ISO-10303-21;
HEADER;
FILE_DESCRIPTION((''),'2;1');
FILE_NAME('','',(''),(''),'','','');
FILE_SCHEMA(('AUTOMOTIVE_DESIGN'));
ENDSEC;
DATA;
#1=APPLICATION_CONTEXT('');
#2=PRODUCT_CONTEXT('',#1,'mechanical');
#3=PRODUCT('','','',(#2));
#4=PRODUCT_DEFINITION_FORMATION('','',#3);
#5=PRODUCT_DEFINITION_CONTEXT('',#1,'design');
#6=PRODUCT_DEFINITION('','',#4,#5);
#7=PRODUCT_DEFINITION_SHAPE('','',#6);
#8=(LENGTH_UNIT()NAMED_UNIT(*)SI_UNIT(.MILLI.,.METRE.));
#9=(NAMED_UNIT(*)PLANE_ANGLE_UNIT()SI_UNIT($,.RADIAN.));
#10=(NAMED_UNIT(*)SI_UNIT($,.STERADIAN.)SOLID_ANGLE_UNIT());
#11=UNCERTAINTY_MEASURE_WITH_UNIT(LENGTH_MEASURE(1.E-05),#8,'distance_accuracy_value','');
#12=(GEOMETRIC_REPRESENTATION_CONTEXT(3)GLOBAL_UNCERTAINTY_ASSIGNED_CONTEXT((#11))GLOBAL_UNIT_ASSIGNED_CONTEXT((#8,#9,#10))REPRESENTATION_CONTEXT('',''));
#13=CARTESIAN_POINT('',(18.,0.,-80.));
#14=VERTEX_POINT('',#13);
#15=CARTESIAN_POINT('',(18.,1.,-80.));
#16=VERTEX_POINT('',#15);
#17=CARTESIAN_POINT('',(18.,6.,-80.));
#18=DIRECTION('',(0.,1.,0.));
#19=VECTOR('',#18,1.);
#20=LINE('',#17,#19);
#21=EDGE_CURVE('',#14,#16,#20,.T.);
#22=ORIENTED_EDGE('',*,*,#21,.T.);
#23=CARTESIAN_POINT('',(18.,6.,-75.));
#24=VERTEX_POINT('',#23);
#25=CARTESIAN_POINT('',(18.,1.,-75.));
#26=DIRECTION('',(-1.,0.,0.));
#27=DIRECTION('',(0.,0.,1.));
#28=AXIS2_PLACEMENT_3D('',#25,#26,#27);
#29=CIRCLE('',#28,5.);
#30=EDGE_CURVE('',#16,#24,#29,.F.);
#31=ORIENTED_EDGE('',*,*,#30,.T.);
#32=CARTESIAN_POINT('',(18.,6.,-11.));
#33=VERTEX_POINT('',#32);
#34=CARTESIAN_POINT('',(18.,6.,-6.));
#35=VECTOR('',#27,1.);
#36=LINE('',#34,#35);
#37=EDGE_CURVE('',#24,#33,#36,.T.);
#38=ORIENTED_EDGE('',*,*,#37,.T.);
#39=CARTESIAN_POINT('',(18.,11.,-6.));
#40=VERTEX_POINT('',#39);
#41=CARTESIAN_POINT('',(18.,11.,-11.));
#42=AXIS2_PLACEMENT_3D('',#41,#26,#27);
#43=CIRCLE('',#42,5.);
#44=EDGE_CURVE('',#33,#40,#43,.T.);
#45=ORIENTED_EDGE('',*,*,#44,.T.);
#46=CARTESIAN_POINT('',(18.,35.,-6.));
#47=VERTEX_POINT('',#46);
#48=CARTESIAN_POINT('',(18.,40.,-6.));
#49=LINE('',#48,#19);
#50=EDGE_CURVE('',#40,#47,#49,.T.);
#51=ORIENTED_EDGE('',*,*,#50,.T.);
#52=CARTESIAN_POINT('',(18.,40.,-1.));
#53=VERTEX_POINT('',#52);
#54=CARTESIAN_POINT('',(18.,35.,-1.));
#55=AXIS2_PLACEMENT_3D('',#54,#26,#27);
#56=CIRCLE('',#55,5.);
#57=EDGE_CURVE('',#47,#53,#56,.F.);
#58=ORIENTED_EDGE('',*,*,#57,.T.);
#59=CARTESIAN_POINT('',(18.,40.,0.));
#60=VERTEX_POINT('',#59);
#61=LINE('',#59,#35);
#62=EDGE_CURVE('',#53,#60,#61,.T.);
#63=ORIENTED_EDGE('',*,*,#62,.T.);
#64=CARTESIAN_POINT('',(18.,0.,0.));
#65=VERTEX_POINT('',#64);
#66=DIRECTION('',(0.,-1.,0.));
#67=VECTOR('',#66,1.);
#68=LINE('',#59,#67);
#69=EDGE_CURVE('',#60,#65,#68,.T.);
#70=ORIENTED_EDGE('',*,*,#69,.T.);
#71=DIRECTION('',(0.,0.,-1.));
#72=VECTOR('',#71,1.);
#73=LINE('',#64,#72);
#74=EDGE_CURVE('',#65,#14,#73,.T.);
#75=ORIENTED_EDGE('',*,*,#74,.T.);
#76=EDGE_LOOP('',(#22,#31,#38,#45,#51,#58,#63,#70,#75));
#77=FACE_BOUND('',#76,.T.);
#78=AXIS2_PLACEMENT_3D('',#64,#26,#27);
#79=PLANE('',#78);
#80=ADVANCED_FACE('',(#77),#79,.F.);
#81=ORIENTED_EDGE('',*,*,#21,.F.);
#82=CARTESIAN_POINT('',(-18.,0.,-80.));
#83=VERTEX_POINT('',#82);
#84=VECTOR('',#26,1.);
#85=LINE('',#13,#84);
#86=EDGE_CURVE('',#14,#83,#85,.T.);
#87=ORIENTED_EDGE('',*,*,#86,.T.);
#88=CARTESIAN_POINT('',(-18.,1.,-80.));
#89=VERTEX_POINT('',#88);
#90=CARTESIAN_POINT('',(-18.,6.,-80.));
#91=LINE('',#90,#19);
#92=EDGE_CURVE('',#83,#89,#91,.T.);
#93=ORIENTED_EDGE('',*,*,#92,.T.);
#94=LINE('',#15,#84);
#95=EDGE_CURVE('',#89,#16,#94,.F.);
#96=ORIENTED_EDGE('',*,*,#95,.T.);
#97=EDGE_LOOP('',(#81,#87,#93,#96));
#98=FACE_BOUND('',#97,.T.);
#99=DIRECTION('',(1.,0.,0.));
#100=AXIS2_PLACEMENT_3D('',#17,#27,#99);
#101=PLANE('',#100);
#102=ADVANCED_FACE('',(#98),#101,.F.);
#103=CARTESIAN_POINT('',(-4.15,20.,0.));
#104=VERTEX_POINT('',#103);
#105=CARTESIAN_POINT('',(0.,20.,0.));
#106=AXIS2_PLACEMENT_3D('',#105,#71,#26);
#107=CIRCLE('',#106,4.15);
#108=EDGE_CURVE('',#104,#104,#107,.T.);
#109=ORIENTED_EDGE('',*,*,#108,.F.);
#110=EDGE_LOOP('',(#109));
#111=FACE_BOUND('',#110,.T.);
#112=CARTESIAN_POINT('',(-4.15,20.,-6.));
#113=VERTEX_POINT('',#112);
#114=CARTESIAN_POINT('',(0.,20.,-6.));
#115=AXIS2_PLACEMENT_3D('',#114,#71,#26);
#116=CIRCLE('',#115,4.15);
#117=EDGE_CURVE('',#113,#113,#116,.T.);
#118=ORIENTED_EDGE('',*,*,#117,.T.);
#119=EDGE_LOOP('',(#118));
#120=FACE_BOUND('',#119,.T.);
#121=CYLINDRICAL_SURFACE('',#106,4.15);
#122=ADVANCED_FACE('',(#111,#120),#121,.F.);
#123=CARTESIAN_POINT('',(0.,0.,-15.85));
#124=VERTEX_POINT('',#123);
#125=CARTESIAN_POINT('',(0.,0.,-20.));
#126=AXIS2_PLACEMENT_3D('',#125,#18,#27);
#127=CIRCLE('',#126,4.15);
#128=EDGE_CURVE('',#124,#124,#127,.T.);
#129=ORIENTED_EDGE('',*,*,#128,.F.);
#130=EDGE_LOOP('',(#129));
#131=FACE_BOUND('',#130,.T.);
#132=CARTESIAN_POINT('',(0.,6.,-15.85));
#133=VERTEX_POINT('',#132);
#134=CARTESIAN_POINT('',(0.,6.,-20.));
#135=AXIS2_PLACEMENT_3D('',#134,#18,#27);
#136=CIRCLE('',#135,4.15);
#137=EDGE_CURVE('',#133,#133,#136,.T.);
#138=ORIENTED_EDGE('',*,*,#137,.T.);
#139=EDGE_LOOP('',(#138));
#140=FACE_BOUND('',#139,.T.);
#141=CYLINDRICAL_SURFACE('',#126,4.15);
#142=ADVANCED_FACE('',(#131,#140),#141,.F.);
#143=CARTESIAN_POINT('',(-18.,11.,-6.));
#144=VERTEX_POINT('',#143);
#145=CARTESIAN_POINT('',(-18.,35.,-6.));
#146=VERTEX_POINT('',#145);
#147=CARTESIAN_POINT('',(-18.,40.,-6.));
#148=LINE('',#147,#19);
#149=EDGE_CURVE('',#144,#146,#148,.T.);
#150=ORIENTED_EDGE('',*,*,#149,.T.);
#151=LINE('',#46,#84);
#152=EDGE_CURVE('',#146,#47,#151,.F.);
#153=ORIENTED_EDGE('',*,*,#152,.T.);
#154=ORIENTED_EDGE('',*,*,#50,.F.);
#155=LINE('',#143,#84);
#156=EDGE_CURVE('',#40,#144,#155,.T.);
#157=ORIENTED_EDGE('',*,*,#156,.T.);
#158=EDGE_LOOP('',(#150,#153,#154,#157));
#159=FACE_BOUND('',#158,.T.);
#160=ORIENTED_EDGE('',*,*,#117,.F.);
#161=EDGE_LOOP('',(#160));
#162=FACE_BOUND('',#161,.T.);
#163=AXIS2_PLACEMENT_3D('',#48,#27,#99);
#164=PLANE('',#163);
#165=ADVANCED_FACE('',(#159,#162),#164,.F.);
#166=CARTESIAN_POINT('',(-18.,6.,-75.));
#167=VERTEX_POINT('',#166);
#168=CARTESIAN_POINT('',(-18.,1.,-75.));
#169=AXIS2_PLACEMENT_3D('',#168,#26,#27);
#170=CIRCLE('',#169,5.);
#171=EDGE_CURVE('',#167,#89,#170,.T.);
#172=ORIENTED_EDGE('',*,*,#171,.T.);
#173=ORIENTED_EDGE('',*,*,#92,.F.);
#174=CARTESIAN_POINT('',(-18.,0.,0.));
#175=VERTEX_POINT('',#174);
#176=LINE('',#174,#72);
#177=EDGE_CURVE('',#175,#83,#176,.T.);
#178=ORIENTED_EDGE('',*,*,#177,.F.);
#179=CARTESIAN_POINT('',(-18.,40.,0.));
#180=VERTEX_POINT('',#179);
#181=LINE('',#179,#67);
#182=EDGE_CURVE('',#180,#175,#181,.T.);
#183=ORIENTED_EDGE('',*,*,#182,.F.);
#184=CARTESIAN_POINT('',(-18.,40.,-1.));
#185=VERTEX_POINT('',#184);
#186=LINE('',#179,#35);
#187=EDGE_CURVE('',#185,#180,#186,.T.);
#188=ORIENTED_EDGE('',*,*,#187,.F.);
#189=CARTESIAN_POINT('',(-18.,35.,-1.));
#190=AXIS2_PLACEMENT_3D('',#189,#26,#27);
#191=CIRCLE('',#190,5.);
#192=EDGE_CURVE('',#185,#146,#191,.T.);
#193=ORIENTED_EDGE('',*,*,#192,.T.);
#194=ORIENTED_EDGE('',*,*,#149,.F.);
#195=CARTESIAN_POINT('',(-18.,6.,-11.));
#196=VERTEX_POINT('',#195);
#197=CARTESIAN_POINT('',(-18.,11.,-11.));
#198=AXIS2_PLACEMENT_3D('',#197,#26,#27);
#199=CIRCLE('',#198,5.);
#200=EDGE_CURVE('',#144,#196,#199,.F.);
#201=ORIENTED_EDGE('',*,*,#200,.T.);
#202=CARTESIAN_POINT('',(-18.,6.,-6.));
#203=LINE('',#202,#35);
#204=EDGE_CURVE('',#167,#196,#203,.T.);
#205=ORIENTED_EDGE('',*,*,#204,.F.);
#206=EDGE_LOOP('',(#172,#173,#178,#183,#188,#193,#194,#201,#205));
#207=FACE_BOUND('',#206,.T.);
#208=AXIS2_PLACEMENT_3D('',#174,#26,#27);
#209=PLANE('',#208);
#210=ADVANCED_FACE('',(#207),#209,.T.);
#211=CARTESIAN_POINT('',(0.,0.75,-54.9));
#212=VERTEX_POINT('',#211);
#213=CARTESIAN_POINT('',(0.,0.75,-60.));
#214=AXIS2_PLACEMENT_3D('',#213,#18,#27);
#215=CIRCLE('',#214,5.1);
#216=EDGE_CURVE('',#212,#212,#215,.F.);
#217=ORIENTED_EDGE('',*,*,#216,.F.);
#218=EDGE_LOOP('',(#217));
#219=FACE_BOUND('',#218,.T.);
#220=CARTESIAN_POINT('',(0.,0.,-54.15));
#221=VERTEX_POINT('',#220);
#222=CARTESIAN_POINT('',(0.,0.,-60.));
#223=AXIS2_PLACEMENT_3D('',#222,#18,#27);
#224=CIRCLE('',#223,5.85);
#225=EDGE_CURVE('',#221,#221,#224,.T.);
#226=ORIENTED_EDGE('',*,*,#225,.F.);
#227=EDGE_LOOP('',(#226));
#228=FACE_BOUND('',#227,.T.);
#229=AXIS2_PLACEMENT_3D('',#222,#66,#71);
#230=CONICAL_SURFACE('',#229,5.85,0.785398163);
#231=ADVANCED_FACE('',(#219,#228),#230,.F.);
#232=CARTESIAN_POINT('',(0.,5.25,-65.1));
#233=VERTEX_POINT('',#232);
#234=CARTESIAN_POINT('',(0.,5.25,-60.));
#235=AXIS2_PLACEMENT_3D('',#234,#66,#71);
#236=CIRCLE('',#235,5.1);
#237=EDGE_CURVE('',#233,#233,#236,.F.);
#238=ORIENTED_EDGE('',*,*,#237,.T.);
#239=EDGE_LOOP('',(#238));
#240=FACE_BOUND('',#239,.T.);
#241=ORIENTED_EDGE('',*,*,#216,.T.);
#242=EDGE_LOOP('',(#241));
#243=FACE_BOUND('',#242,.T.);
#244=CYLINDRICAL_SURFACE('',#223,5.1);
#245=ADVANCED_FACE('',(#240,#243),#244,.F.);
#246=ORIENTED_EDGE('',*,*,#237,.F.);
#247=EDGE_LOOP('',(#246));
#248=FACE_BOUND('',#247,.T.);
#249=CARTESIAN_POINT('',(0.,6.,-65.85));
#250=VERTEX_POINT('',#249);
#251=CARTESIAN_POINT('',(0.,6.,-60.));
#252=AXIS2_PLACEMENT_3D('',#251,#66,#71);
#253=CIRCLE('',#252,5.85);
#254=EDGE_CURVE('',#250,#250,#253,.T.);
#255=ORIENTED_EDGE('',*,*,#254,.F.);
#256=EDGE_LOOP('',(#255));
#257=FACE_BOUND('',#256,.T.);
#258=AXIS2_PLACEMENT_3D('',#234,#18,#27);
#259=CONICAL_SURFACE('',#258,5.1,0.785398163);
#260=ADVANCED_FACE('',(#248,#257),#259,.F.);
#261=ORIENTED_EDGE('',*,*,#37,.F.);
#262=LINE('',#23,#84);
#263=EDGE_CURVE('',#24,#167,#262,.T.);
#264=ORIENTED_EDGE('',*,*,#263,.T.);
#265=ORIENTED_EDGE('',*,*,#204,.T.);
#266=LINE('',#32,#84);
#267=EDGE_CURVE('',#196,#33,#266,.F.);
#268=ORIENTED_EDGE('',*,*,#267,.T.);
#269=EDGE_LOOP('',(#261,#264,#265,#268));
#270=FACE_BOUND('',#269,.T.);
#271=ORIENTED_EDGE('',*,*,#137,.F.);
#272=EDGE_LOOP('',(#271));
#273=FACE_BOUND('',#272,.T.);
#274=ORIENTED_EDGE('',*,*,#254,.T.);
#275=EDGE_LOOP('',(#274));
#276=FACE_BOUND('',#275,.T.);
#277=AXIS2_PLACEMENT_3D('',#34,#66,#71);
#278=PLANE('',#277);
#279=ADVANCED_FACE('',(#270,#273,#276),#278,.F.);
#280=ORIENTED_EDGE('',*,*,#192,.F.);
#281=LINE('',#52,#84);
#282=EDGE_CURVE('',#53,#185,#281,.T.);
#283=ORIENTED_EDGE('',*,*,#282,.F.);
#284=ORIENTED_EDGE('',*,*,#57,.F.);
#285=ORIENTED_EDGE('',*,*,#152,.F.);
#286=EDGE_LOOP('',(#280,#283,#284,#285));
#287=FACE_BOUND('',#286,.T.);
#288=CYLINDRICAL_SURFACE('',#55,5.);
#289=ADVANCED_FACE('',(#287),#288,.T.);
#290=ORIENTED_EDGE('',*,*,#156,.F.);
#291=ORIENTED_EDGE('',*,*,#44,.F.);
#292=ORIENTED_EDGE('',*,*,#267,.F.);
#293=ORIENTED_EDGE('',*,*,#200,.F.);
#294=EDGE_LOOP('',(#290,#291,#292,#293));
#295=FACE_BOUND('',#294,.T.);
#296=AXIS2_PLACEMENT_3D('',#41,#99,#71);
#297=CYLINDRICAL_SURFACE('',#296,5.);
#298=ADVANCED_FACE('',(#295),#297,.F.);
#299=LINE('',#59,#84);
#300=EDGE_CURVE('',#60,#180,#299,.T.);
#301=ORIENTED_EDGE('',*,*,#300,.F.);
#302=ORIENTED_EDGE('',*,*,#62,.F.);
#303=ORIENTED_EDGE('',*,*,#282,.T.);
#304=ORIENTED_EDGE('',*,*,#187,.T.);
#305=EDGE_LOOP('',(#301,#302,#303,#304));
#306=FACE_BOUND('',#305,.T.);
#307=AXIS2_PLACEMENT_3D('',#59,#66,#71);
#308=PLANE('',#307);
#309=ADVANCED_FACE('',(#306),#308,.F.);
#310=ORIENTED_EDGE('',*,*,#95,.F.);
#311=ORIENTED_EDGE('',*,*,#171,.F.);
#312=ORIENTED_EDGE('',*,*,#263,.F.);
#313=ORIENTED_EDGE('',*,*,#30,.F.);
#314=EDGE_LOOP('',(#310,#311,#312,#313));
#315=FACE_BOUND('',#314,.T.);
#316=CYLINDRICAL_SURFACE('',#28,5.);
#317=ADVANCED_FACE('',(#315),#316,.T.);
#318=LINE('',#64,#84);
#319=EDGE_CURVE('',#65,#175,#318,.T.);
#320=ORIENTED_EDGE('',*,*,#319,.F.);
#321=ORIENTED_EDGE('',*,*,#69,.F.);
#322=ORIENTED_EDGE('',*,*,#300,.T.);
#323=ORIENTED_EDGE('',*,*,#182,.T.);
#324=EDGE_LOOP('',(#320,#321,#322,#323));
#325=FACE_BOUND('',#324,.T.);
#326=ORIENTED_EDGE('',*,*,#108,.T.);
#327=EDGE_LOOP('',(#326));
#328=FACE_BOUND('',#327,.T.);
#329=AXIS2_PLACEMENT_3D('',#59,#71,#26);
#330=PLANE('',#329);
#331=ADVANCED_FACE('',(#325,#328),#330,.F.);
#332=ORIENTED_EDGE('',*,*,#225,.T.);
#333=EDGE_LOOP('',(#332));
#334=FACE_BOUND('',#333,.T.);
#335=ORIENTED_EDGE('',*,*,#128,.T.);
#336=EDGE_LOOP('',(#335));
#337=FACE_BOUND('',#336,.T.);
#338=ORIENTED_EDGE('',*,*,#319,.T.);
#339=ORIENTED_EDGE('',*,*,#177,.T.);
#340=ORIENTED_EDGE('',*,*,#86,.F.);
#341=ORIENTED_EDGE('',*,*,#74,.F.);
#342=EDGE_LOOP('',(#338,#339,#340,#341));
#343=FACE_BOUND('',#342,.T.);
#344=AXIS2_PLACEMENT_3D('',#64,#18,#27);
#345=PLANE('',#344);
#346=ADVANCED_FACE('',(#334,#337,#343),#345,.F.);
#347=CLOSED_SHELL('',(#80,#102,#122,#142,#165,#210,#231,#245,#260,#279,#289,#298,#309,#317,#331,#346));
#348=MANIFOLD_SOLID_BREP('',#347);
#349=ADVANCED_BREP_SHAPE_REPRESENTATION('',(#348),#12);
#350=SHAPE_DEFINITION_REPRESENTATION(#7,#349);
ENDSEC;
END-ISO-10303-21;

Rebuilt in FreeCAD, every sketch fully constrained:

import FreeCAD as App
import Part
import Sketcher
from FreeCAD import Vector
Q = App.Units.Quantity


def edges_at(feature, points):
    """Names of the edges that pass closest to the given points."""
    edges = feature.Shape.Edges
    near = lambda p: min(range(len(edges)), key=lambda i: edges[i].distToShape(Part.Vertex(*p))[0])
    return sorted({f"Edge{near(p) + 1}" for p in points})

doc = App.newDocument("Part")
body = doc.addObject("PartDesign::Body", "Body")

sketch1 = body.newObject("Sketcher::SketchObject", "Sketch")
sketch1.AttachmentSupport = (doc.getObject("YZ_Plane"), [""])
sketch1.MapMode = "FlatFace"
sketch1.addGeometry(Part.LineSegment(Vector(40, 0, 0), Vector(0, 0, 0)), False)
sketch1.addGeometry(Part.LineSegment(Vector(0, 0, 0), Vector(0, -80, 0)), False)
sketch1.addGeometry(Part.LineSegment(Vector(0, -80, 0), Vector(6, -80, 0)), False)
sketch1.addGeometry(Part.LineSegment(Vector(6, -80, 0), Vector(6, -6, 0)), False)
sketch1.addGeometry(Part.LineSegment(Vector(6, -6, 0), Vector(40, -6, 0)), False)
sketch1.addGeometry(Part.LineSegment(Vector(40, -6, 0), Vector(40, 0, 0)), False)
sketch1.addConstraint(Sketcher.Constraint("Coincident", 0, 2, 1, 1))
sketch1.addConstraint(Sketcher.Constraint("Coincident", 1, 2, 2, 1))
sketch1.addConstraint(Sketcher.Constraint("Coincident", 2, 2, 3, 1))
sketch1.addConstraint(Sketcher.Constraint("Coincident", 3, 2, 4, 1))
sketch1.addConstraint(Sketcher.Constraint("Coincident", 4, 2, 5, 1))
sketch1.addConstraint(Sketcher.Constraint("Coincident", 5, 2, 0, 1))
sketch1.addConstraint(Sketcher.Constraint("Horizontal", 0))
sketch1.addConstraint(Sketcher.Constraint("Vertical", 1))
sketch1.addConstraint(Sketcher.Constraint("Horizontal", 2))
sketch1.addConstraint(Sketcher.Constraint("Vertical", 3))
sketch1.addConstraint(Sketcher.Constraint("Horizontal", 4))
sketch1.addConstraint(Sketcher.Constraint("Vertical", 5))
sketch1.addConstraint(Sketcher.Constraint("Coincident", 0, 2, -1, 1))
sketch1.addConstraint(Sketcher.Constraint("Equal", 2, 5))
sketch1.addConstraint(Sketcher.Constraint("DistanceX", 0, 2, 0, 1, Q("40 mm")))
sketch1.addConstraint(Sketcher.Constraint("DistanceX", 2, 1, 2, 2, Q("6 mm")))
sketch1.addConstraint(Sketcher.Constraint("DistanceY", 1, 2, 1, 1, Q("80 mm")))
pad1 = body.newObject("PartDesign::Pad", "Pad")
pad1.Profile = sketch1
pad1.Length = 36
pad1.Midplane = True

sketch2 = body.newObject("Sketcher::SketchObject", "Sketch001")
sketch2.AttachmentSupport = (doc.getObject("XZ_Plane"), [""])
sketch2.MapMode = "FlatFace"
sketch2.AttachmentOffset = App.Placement(Vector(0, 0, -6), App.Rotation())
sketch2.addGeometry(Part.Circle(Vector(0, -60, 0), Vector(0, 0, 1), 5.1), False)
sketch2.addGeometry(Part.Circle(Vector(0, -20, 0), Vector(0, 0, 1), 4.2), False)
sketch2.addConstraint(Sketcher.Constraint("PointOnObject", 0, 3, -2))
sketch2.addConstraint(Sketcher.Constraint("PointOnObject", 1, 3, -2))
sketch2.addConstraint(Sketcher.Constraint("Diameter", 0, Q("10.2 mm")))
sketch2.addConstraint(Sketcher.Constraint("Diameter", 1, Q("8.3 mm")))
sketch2.addConstraint(Sketcher.Constraint("DistanceY", 0, 3, -1, 1, Q("60 mm")))
sketch2.addConstraint(Sketcher.Constraint("DistanceY", 1, 3, -1, 1, Q("20 mm")))
pocket1 = body.newObject("PartDesign::Pocket", "Pocket")
pocket1.Profile = sketch2
pocket1.Type = "ThroughAll"
pocket1.Reversed = True

sketch3 = body.newObject("Sketcher::SketchObject", "Sketch002")
sketch3.AttachmentSupport = (doc.getObject("XY_Plane"), [""])
sketch3.MapMode = "FlatFace"
sketch3.AttachmentOffset = App.Placement(Vector(0, 0, -6), App.Rotation())
sketch3.addGeometry(Part.Circle(Vector(0, 20, 0), Vector(0, 0, 1), 4.2), False)
sketch3.addConstraint(Sketcher.Constraint("PointOnObject", 0, 3, -2))
sketch3.addConstraint(Sketcher.Constraint("Diameter", 0, Q("8.3 mm")))
sketch3.addConstraint(Sketcher.Constraint("DistanceY", -1, 1, 0, 3, Q("20 mm")))
pocket2 = body.newObject("PartDesign::Pocket", "Pocket001")
pocket2.Profile = sketch3
pocket2.Type = "ThroughAll"
pocket2.Reversed = True
doc.recompute()

fillet = body.newObject("PartDesign::Fillet", "Fillet")
fillet.Base = (pocket2, edges_at(pocket2, [(0, 40, -6), (0, 6, -6), (0, 6, -80)]))
fillet.Radius = 5
doc.recompute()

chamfer = body.newObject("PartDesign::Chamfer", "Chamfer")
chamfer.Base = (fillet, edges_at(fillet, [(-5.1, 0, -60), (-5.1, 6, -60)]))
chamfer.Size = 0.75

doc.recompute()
